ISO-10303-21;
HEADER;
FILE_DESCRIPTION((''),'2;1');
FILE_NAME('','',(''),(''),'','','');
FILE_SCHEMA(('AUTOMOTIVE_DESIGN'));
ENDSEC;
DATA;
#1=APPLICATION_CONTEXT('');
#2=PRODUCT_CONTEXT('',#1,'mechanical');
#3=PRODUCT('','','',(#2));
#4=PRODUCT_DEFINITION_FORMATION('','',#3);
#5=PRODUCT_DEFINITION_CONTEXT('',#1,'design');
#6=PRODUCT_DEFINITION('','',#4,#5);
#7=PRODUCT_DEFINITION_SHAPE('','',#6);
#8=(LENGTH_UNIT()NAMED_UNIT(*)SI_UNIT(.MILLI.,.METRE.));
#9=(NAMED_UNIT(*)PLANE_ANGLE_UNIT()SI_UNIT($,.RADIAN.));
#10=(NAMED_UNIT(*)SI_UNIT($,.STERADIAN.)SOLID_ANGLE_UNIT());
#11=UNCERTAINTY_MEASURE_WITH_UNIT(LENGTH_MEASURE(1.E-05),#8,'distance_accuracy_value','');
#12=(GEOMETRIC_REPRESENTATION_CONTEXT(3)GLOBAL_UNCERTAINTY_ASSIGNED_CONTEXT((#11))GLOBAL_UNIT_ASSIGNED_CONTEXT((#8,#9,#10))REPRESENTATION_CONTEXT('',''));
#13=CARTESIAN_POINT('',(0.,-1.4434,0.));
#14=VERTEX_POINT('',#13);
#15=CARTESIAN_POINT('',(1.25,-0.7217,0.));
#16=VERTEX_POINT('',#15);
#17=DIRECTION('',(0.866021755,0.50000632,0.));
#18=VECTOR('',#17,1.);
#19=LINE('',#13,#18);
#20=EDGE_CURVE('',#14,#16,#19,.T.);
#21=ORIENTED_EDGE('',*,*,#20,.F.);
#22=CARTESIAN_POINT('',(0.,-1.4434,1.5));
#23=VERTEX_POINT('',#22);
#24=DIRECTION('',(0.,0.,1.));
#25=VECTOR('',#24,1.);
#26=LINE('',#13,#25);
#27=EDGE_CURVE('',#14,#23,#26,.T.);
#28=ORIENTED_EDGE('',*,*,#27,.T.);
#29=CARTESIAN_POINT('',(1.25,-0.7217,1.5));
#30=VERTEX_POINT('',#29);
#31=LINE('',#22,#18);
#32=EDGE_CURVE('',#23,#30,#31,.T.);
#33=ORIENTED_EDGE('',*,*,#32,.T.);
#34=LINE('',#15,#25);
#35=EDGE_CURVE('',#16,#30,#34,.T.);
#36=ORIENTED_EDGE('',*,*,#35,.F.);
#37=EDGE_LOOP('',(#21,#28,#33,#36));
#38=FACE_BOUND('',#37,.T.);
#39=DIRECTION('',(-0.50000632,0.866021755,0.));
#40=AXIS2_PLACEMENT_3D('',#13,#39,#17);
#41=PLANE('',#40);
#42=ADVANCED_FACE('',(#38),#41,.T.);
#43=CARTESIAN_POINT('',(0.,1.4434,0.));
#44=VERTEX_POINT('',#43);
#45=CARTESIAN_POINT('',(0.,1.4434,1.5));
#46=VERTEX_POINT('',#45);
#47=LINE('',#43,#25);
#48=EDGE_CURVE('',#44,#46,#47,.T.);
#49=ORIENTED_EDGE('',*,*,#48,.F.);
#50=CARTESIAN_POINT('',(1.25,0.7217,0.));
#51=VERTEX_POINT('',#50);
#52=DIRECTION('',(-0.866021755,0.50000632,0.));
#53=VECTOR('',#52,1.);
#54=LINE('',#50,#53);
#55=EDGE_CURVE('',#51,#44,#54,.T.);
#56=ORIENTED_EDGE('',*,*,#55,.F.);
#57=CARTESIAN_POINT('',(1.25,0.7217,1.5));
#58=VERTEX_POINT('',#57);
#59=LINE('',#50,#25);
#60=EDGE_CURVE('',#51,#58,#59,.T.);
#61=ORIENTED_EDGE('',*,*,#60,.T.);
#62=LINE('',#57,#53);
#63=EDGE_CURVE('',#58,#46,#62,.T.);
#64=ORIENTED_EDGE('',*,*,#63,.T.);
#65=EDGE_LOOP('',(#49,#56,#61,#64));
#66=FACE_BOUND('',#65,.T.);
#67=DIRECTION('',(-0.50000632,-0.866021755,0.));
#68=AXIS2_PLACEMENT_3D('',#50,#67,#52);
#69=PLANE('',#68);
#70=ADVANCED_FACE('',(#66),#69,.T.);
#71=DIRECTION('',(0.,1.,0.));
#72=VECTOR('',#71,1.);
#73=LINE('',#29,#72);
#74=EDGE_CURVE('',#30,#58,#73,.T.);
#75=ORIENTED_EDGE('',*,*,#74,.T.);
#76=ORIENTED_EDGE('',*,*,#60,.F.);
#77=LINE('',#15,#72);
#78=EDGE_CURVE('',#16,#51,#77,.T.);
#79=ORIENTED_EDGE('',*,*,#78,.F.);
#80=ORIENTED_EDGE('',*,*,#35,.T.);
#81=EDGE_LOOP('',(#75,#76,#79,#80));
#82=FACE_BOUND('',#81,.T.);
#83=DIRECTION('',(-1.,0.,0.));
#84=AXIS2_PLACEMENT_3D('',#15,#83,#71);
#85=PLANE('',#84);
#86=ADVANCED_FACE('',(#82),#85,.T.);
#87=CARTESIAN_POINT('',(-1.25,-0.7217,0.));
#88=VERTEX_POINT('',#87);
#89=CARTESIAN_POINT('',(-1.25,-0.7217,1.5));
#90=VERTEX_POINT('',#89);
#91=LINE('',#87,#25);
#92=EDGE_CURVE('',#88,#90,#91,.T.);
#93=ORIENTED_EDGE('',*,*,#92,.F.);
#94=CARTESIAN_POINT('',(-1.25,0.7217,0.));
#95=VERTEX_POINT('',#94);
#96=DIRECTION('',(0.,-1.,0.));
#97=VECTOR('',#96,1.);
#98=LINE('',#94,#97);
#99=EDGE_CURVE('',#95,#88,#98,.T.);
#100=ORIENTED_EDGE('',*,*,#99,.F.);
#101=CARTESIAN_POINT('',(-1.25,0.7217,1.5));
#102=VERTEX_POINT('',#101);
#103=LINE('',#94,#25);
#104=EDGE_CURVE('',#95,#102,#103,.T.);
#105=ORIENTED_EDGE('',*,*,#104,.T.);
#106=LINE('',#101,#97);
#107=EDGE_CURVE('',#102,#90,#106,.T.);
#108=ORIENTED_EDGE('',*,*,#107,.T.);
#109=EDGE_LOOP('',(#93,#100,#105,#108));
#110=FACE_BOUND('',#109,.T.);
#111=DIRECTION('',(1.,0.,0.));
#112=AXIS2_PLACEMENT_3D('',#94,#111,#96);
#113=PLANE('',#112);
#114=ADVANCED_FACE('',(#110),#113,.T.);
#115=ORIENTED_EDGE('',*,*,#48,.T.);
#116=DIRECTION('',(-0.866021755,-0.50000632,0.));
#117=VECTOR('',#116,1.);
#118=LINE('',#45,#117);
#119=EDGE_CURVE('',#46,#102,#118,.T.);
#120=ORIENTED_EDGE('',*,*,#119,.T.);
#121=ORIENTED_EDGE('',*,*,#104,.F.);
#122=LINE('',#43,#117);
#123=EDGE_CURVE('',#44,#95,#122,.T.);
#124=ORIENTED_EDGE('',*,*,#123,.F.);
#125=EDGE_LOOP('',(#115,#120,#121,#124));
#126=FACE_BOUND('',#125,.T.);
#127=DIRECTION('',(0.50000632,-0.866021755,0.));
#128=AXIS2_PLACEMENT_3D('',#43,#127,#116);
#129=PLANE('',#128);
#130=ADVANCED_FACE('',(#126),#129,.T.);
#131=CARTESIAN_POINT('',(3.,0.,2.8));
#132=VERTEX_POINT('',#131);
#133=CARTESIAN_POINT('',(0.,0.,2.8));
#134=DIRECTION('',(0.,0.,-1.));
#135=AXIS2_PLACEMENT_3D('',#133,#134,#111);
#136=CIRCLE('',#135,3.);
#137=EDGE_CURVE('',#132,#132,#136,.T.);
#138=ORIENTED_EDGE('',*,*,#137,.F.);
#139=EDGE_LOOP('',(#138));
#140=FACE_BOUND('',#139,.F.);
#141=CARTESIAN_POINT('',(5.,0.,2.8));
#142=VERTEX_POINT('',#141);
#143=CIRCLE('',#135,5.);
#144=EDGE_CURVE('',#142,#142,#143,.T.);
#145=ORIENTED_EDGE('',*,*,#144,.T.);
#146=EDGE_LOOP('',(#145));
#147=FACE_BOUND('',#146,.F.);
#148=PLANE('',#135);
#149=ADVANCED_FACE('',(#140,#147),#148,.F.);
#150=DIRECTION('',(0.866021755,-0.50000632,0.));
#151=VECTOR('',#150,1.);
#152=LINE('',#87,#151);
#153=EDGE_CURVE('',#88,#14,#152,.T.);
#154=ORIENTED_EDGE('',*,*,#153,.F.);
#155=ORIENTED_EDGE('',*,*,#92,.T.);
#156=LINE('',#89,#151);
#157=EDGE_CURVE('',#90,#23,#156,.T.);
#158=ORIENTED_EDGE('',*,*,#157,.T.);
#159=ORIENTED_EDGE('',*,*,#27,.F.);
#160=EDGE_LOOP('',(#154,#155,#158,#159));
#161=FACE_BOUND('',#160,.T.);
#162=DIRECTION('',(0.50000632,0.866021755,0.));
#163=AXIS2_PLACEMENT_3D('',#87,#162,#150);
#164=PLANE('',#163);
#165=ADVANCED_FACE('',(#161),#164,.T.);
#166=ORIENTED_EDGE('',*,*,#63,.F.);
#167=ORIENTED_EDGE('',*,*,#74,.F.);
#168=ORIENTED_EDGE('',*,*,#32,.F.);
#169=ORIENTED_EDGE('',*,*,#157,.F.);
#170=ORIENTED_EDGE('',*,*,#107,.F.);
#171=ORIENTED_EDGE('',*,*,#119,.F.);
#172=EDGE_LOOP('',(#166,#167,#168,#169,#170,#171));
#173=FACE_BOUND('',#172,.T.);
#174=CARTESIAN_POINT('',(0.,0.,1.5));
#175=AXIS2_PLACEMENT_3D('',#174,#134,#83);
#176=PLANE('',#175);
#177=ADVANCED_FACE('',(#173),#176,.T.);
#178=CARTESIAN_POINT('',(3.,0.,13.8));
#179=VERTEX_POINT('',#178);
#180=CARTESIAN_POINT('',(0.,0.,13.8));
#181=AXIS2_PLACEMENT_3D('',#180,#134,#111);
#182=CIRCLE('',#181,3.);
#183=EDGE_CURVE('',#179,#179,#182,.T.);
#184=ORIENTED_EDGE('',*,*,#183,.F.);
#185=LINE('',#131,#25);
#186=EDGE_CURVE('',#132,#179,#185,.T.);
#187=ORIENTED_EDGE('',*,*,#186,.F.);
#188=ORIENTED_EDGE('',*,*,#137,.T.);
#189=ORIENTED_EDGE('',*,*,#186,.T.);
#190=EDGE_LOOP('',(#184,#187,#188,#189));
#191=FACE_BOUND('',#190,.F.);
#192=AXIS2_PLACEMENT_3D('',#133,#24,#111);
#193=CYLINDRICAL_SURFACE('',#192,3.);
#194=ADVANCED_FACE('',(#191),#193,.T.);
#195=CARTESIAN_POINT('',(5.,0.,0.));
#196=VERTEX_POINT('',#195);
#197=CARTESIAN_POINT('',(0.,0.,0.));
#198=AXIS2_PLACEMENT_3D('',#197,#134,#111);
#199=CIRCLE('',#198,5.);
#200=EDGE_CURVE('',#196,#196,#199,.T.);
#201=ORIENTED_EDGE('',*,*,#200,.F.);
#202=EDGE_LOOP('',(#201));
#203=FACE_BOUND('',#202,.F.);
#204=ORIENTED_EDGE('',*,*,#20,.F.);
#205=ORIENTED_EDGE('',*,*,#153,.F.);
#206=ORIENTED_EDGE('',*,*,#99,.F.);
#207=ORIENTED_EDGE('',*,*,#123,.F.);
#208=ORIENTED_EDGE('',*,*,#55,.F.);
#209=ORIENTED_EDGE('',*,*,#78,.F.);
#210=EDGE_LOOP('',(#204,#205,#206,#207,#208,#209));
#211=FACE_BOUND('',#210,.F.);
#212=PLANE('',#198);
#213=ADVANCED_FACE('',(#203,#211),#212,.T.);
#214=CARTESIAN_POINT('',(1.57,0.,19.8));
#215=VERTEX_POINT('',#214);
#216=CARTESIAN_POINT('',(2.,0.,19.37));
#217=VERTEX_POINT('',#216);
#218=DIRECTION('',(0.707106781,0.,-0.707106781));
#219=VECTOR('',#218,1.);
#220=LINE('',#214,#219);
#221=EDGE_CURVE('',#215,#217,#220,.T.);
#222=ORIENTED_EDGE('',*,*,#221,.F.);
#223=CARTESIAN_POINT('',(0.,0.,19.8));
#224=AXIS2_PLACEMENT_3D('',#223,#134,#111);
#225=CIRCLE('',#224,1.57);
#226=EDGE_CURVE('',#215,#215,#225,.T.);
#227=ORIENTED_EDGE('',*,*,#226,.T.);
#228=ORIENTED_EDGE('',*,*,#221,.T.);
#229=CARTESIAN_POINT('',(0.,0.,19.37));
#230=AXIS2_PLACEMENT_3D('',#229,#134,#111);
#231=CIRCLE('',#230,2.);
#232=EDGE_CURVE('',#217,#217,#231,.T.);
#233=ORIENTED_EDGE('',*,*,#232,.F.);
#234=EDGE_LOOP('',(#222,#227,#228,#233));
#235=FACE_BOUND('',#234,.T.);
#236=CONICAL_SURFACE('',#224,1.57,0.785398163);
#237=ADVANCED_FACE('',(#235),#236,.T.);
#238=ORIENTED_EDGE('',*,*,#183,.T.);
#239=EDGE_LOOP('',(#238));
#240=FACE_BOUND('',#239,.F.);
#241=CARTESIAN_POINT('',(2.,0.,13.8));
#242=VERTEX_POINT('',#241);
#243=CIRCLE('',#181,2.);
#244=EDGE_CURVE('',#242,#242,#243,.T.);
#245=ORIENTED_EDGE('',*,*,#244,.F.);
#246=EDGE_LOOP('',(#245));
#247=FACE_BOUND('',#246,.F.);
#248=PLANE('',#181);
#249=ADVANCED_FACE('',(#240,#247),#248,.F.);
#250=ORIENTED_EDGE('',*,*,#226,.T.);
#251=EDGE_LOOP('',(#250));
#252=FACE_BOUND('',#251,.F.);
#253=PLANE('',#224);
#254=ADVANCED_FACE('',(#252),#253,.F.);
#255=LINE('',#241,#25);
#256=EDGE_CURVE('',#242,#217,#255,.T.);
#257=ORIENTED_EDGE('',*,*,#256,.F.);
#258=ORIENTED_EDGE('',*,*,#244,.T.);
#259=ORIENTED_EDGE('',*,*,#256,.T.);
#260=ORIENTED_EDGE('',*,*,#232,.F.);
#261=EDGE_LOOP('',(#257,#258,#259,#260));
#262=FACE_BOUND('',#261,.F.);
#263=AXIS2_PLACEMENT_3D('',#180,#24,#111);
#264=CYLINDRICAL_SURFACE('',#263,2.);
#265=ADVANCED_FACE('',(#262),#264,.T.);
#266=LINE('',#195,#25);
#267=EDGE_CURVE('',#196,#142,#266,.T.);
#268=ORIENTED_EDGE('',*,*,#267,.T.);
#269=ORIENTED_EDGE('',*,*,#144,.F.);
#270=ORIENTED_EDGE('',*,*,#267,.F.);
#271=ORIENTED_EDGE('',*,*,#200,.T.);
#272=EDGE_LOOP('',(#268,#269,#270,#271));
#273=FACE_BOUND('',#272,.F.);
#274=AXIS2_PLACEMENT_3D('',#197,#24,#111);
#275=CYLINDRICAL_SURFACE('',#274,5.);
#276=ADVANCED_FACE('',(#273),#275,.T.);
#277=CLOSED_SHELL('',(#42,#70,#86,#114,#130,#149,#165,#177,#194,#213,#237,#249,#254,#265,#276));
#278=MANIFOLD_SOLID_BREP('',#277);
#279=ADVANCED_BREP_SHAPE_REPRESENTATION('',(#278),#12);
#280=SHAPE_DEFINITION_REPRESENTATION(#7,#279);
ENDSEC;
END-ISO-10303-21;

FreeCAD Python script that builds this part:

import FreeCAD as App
import Part
import Sketcher

V = App.Vector
Q = App.Units.Quantity


def add_polygon(sketch, points):
    """Adds a closed chain of lines whose ends are joined by coincident constraints."""
    first, n = sketch.GeometryCount, len(points)
    for a, b in zip(points, points[1:] + points[:1]):
        sketch.addGeometry(Part.LineSegment(App.Vector(*a, 0), App.Vector(*b, 0)), False)
    for i in range(n):
        sketch.addConstraint(Sketcher.Constraint("Coincident", first + i, 2, first + (i + 1) % n, 1))

doc = App.newDocument("Part")
params = doc.addObject("Spreadsheet::Sheet", "Params")
for row, (alias, value) in enumerate([
    ("sketch1_height", "11 mm"),
    ("sketch1_height2", "2.8 mm"),
    ("sketch1_width", "5 mm"),
    ("sketch1_width2", "1 mm"),
    ("sketch1_width3", "2 mm"),
    ("revolution_angle", "360 deg"),
    ("pocket1_length", "1.5 mm"),
], start=1):
    params.set(f"A{row}", alias)
    params.set(f"B{row}", "=" + value)
    params.setAlias(f"B{row}", alias)

body = doc.addObject("PartDesign::Body", "Body")

sketch1 = doc.addObject("Sketcher::SketchObject", "Sketch")
body.addObject(sketch1)
sketch1.AttachmentSupport = (doc.XZ_Plane, [""])
sketch1.MapMode = "FlatFace"
add_polygon(sketch1, [(5, 0), (0, 0), (0, 19.8), (1.6, 19.8), (2, 19.4), (2, 13.8), (3, 13.8), (3, 2.8), (5, 2.8)])
sketch1.addConstraint(Sketcher.Constraint("Horizontal", 0))
sketch1.addConstraint(Sketcher.Constraint("Vertical", 1))
sketch1.addConstraint(Sketcher.Constraint("Horizontal", 2))
sketch1.addConstraint(Sketcher.Constraint("Vertical", 4))
sketch1.addConstraint(Sketcher.Constraint("Horizontal", 5))
sketch1.addConstraint(Sketcher.Constraint("Vertical", 6))
sketch1.addConstraint(Sketcher.Constraint("Horizontal", 7))
sketch1.addConstraint(Sketcher.Constraint("Vertical", 8))
sketch1.addConstraint(Sketcher.Constraint("Coincident", 0, 2, -1, 1))
sketch1.addConstraint(Sketcher.Constraint("DistanceY", 6, 2, 6, 1, 11.0))
sketch1.addConstraint(Sketcher.Constraint("DistanceY", 8, 2, 8, 1, 2.8))
sketch1.addConstraint(Sketcher.Constraint("DistanceY", 4, 2, 2, 2, 6.0))
sketch1.addConstraint(Sketcher.Constraint("DistanceX", 0, 2, 0, 1, 5.0))
sketch1.addConstraint(Sketcher.Constraint("DistanceX", 5, 1, 5, 2, 1.0))
sketch1.addConstraint(Sketcher.Constraint("DistanceX", 7, 1, 7, 2, 2.0))
sketch1.addConstraint(Sketcher.Constraint("Angle", 3, Q("-45 deg")))
sketch1.addConstraint(Sketcher.Constraint("DistanceX", 2, 2, 3, 2, 0.43))
sketch1.setExpression("Constraints[18]", "Params.sketch1_height")
sketch1.setExpression("Constraints[19]", "Params.sketch1_height2")
sketch1.setExpression("Constraints[21]", "Params.sketch1_width")
sketch1.setExpression("Constraints[22]", "Params.sketch1_width2")
sketch1.setExpression("Constraints[23]", "Params.sketch1_width3")
revolution = doc.addObject("PartDesign::Revolution", "Revolution")
body.addObject(revolution)
revolution.Profile = sketch1
revolution.ReferenceAxis = (sketch1, ["V_Axis"])
revolution.setExpression("Angle", "Params.revolution_angle")

sketch2 = doc.addObject("Sketcher::SketchObject", "Sketch001")
body.addObject(sketch2)
sketch2.AttachmentSupport = (doc.XY_Plane, [""])
sketch2.MapMode = "FlatFace"
add_polygon(sketch2, [(1.2, -0.7), (0, -1.4), (-1.2, -0.7), (-1.2, 0.7), (0, 1.4), (1.2, 0.7)])
sketch2.addConstraint(Sketcher.Constraint("Vertical", 2))
sketch2.addConstraint(Sketcher.Constraint("Vertical", 5))
sketch2.addConstraint(Sketcher.Constraint("Symmetric", 0, 2, 3, 2, -1, 1))
sketch2.addConstraint(Sketcher.Constraint("Symmetric", 1, 2, 4, 2, -1, 1))
sketch2.addConstraint(Sketcher.Constraint("PointOnObject", 0, 2, -2))
sketch2.addConstraint(Sketcher.Constraint("Parallel", 0, 3))
sketch2.addConstraint(Sketcher.Constraint("Horizontal", 2, 2, 4, 2))
sketch2.addConstraint(Sketcher.Constraint("DistanceX", 2, 2, 4, 2, 2.5))
sketch2.addConstraint(Sketcher.Constraint("Angle", 0, Q("-149.9996 deg")))
sketch2.addConstraint(Sketcher.Constraint("DistanceY", 2, 1, 2, 2, 1.4434))
pocket1 = doc.addObject("PartDesign::Pocket", "Pocket")
body.addObject(pocket1)
pocket1.Profile = sketch2
pocket1.setExpression("Length", "Params.pocket1_length")
pocket1.Reversed = True

doc.recompute()
